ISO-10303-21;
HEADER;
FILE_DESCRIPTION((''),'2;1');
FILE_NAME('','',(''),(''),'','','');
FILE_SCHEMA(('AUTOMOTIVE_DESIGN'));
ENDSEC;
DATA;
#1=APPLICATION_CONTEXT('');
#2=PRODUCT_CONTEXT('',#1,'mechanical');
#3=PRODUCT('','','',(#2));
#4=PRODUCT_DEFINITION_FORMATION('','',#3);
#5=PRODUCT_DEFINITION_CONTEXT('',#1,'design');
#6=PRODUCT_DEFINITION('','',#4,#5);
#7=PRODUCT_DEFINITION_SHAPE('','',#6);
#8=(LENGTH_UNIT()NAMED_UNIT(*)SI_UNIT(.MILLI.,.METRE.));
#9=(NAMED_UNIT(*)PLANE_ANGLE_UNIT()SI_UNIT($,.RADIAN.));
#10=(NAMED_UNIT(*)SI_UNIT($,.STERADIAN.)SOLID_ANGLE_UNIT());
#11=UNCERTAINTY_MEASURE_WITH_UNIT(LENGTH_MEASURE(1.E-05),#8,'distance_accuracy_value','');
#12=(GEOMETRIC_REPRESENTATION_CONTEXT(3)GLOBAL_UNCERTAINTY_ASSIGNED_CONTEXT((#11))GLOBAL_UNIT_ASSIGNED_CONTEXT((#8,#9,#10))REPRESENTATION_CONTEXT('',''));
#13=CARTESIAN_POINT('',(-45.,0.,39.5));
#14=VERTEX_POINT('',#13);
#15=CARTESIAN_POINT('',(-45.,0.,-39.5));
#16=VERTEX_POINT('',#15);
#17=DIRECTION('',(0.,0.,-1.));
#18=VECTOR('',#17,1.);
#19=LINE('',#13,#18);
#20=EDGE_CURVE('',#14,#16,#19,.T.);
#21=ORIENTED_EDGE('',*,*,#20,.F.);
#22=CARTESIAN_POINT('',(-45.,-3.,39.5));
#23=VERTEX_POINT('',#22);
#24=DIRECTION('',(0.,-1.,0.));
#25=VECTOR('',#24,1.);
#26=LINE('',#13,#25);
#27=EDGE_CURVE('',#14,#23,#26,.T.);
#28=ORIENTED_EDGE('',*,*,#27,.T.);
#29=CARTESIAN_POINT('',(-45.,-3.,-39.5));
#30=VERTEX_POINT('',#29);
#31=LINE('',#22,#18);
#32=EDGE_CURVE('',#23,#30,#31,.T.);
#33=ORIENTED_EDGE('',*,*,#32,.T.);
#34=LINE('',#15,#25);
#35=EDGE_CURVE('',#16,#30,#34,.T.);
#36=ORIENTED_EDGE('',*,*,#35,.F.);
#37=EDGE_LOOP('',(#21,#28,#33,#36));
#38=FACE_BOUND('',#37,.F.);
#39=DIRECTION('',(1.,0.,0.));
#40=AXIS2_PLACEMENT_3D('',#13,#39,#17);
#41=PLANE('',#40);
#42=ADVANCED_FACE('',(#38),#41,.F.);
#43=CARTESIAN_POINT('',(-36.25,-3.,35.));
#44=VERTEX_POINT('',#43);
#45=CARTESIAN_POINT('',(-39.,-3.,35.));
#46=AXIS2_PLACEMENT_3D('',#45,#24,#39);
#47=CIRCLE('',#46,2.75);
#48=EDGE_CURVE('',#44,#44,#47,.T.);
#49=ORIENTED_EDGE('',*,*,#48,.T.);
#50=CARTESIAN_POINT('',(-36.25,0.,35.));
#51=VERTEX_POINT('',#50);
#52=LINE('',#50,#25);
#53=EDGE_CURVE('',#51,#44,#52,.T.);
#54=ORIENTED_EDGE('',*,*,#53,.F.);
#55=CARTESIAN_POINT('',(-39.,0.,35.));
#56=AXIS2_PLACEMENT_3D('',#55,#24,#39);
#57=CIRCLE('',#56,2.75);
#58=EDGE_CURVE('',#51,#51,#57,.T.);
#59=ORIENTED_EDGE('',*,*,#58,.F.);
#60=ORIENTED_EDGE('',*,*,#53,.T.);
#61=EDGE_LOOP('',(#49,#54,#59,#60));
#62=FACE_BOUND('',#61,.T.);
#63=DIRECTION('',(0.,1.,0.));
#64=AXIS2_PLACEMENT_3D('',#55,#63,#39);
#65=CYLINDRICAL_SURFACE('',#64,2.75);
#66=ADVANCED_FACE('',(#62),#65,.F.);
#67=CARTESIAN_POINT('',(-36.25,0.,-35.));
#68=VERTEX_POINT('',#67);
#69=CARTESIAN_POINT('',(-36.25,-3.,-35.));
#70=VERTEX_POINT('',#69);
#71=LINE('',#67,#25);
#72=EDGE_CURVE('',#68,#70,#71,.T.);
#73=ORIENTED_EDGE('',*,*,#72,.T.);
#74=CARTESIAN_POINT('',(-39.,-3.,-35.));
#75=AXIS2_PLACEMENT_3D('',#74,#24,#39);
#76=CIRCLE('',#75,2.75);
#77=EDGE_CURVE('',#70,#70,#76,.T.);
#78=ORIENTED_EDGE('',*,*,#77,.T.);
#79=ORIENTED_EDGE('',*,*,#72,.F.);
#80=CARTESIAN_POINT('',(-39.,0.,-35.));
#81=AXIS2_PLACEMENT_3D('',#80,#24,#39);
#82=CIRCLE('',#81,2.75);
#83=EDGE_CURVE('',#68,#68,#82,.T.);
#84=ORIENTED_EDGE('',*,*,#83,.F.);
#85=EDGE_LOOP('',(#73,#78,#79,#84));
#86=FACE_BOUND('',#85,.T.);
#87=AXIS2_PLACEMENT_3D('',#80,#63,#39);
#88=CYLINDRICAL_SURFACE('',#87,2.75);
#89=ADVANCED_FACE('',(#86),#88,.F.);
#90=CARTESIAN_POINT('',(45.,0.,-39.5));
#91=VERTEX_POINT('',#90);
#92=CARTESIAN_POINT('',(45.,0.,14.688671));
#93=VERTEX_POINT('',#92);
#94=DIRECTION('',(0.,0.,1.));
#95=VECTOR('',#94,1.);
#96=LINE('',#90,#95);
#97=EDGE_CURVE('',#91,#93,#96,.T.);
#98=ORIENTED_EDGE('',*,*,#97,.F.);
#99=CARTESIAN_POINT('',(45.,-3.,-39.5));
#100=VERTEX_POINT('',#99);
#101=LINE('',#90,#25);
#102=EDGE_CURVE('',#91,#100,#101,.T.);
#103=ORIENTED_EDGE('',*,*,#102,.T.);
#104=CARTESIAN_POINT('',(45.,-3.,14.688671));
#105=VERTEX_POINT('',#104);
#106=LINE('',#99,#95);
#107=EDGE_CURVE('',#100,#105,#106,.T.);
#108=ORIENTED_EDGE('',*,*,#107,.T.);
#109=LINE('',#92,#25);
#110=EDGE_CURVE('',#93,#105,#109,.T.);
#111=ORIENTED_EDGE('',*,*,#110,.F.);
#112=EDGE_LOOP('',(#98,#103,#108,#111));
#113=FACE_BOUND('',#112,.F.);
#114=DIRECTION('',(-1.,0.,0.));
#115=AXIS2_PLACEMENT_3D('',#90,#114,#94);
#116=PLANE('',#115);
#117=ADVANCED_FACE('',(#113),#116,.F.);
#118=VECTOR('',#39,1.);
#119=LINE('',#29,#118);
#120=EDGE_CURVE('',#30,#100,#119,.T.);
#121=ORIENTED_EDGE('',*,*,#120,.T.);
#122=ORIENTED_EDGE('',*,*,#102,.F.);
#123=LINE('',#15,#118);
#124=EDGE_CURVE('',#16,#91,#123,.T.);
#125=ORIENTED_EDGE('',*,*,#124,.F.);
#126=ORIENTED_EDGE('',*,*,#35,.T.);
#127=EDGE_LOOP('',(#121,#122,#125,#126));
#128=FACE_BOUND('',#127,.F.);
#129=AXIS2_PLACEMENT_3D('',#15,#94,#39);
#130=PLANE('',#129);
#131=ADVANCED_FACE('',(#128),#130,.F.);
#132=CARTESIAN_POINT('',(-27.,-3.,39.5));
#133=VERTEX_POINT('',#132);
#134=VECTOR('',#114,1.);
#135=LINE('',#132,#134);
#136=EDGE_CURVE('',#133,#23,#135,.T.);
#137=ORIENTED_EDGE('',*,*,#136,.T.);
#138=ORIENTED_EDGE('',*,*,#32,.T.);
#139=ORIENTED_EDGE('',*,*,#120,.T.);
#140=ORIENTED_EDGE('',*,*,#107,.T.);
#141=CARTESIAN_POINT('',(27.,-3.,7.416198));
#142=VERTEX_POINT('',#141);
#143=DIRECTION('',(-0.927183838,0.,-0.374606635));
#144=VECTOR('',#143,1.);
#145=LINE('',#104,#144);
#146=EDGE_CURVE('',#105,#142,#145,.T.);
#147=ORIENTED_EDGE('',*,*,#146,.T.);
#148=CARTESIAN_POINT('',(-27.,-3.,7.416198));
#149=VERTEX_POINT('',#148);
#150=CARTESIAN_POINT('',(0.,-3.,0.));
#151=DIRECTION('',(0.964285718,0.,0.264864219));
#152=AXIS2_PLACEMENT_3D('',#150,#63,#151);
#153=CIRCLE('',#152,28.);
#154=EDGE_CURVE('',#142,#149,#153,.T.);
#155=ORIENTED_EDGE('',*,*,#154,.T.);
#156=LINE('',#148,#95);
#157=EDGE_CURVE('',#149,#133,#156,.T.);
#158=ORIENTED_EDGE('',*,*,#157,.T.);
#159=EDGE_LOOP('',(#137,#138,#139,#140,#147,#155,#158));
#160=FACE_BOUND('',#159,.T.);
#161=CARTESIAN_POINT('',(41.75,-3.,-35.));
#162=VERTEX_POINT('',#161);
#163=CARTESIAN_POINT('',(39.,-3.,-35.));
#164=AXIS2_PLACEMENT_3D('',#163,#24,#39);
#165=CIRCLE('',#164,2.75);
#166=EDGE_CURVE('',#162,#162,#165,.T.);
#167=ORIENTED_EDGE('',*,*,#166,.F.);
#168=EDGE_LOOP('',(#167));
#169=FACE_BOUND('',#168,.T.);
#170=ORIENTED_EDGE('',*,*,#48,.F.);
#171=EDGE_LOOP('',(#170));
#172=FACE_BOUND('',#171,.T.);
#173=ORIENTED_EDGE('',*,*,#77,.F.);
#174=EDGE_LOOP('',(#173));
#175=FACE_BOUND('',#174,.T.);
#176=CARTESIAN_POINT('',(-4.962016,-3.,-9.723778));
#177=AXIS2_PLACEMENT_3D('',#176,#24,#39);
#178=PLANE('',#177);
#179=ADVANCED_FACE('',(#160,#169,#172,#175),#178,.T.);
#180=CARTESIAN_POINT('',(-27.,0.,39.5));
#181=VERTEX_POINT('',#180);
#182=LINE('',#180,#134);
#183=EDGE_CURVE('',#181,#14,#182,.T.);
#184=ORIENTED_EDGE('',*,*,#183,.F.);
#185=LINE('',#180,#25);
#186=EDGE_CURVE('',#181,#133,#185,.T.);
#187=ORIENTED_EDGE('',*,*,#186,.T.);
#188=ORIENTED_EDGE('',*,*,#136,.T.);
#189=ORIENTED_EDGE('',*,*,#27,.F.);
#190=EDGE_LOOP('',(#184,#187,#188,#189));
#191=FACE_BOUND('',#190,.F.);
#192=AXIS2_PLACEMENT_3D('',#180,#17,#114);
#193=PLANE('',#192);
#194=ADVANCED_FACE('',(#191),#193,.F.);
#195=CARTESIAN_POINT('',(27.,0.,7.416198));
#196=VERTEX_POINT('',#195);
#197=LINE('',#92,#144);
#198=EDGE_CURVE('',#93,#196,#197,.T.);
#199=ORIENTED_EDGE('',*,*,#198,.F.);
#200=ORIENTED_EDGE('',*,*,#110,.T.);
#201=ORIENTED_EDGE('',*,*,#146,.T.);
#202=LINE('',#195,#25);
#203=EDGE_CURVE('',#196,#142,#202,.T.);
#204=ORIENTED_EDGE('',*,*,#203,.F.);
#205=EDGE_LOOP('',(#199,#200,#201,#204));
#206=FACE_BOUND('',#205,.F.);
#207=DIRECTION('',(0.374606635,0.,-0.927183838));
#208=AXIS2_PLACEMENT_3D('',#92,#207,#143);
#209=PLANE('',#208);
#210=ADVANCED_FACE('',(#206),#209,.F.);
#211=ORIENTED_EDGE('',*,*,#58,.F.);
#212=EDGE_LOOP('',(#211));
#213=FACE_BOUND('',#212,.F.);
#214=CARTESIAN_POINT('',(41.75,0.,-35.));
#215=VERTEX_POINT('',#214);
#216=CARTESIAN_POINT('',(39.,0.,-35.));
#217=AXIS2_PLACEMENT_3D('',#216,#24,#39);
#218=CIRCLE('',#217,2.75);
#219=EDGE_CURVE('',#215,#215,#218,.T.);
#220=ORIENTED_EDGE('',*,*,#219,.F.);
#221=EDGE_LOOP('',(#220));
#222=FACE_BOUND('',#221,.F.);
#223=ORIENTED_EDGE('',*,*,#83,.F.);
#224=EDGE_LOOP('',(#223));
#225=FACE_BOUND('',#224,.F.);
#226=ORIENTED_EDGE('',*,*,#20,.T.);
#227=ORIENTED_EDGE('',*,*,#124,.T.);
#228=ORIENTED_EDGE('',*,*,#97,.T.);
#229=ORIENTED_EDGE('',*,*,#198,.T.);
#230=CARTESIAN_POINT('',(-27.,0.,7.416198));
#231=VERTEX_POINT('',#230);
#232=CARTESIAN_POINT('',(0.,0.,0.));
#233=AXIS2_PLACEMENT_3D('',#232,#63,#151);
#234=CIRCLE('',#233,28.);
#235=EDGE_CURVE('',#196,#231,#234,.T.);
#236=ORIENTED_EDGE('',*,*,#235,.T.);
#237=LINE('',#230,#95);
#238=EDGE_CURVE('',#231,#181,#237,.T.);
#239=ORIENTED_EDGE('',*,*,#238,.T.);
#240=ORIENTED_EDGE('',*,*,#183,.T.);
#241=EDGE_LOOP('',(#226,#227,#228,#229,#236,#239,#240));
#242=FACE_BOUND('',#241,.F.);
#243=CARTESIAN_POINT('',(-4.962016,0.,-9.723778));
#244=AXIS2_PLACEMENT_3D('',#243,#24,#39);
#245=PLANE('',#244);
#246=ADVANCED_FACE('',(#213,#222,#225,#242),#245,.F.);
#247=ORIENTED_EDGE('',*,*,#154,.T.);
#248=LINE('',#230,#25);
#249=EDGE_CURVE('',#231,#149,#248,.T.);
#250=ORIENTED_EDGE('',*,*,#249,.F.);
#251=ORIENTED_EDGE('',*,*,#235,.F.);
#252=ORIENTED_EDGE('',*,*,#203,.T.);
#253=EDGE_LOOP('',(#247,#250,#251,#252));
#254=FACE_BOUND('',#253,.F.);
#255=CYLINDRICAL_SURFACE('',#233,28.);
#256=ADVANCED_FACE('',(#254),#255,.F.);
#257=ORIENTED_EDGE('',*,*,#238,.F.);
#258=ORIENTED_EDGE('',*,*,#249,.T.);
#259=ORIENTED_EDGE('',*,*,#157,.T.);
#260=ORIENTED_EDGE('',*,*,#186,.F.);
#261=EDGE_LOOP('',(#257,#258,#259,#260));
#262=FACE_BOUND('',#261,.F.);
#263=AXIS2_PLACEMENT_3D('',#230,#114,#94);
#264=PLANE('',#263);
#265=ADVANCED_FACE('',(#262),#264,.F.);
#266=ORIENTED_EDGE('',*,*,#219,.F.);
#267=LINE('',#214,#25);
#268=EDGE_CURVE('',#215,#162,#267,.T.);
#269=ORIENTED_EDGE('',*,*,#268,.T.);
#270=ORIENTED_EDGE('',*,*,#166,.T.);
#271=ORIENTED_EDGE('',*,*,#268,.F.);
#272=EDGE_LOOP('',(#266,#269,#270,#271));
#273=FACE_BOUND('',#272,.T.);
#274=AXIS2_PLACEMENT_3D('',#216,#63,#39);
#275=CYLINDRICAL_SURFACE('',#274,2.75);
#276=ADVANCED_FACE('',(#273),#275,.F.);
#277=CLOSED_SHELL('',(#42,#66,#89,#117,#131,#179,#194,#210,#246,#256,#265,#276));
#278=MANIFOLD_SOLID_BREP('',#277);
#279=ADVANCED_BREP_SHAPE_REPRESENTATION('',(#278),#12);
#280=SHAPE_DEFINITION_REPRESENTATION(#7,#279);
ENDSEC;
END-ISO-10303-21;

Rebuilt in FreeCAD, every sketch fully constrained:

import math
import FreeCAD as App
import Part
import Sketcher
from FreeCAD import Vector
Q = App.Units.Quantity

doc = App.newDocument("Part")
body = doc.addObject("PartDesign::Body", "Body")

sketch1 = body.newObject("Sketcher::SketchObject", "Sketch")
sketch1.AttachmentSupport = (doc.getObject("XZ_Plane"), [""])
sketch1.MapMode = "FlatFace"
sketch1.addGeometry([
    Part.LineSegment(Vector(-27, 39.5, 0), Vector(-45, 39.5, 0)),
    Part.LineSegment(Vector(-45, 39.5, 0), Vector(-45, -39.5, 0)),
    Part.LineSegment(Vector(-45, -39.5, 0), Vector(45, -39.5, 0)),
    Part.LineSegment(Vector(45, -39.5, 0), Vector(45, 14.7, 0)),
    Part.LineSegment(Vector(45, 14.7, 0), Vector(27, 7.4, 0)),
    Part.ArcOfCircle(Part.Circle(Vector(0, 0, 0), Vector(0, 0, 1), 28), math.radians(165), math.radians(375)),
    Part.LineSegment(Vector(-27, 7.4, 0), Vector(-27, 39.5, 0)),
    Part.Circle(Vector(-39, -35, 0), Vector(0, 0, 1), 2.8),
    Part.Circle(Vector(39, -35, 0), Vector(0, 0, 1), 2.8),
    Part.Circle(Vector(-39, 35, 0), Vector(0, 0, 1), 2.8),
], False)
sketch1.addConstraint([
    Sketcher.Constraint("Coincident", 0, 2, 1, 1),
    Sketcher.Constraint("Coincident", 1, 2, 2, 1),
    Sketcher.Constraint("Coincident", 2, 2, 3, 1),
    Sketcher.Constraint("Coincident", 3, 2, 4, 1),
    Sketcher.Constraint("Coincident", 4, 2, 5, 2),
    Sketcher.Constraint("Coincident", 5, 1, 6, 1),
    Sketcher.Constraint("Coincident", 6, 2, 0, 1),
    Sketcher.Constraint("Horizontal", 0),
    Sketcher.Constraint("Vertical", 1),
    Sketcher.Constraint("Horizontal", 2),
    Sketcher.Constraint("Vertical", 3),
    Sketcher.Constraint("Vertical", 6),
    Sketcher.Constraint("Coincident", 5, 3, -1, 1),
    Sketcher.Constraint("Equal", 7, 8),
    Sketcher.Constraint("Equal", 8, 9),
    Sketcher.Constraint("Symmetric", 8, 3, 9, 3, -1, 1),
    Sketcher.Constraint("Symmetric", 0, 2, 2, 2, -1, 1),
    Sketcher.Constraint("Symmetric", 7, 3, 8, 3, -2),
    Sketcher.Constraint("Horizontal", 4, 2, 5, 1),
    Sketcher.Constraint("Radius", 5, 28.0),
    Sketcher.Constraint("Diameter", 7, 5.5),
    Sketcher.Constraint("DistanceX", 0, 2, 0, 1, 18.0),
    Sketcher.Constraint("DistanceX", 2, 1, 2, 2, 90.0),
    Sketcher.Constraint("DistanceY", 1, 2, 1, 1, 79.0),
    Sketcher.Constraint("Angle", 4, Q("-157.999997 deg")),
    Sketcher.Constraint("DistanceX", 7, 3, -1, 1, 39.0),
    Sketcher.Constraint("DistanceY", 7, 3, -1, 1, 35.0),
])
pad1 = body.newObject("PartDesign::Pad", "Pad")
pad1.Profile = sketch1
pad1.Length = 3

doc.recompute()
